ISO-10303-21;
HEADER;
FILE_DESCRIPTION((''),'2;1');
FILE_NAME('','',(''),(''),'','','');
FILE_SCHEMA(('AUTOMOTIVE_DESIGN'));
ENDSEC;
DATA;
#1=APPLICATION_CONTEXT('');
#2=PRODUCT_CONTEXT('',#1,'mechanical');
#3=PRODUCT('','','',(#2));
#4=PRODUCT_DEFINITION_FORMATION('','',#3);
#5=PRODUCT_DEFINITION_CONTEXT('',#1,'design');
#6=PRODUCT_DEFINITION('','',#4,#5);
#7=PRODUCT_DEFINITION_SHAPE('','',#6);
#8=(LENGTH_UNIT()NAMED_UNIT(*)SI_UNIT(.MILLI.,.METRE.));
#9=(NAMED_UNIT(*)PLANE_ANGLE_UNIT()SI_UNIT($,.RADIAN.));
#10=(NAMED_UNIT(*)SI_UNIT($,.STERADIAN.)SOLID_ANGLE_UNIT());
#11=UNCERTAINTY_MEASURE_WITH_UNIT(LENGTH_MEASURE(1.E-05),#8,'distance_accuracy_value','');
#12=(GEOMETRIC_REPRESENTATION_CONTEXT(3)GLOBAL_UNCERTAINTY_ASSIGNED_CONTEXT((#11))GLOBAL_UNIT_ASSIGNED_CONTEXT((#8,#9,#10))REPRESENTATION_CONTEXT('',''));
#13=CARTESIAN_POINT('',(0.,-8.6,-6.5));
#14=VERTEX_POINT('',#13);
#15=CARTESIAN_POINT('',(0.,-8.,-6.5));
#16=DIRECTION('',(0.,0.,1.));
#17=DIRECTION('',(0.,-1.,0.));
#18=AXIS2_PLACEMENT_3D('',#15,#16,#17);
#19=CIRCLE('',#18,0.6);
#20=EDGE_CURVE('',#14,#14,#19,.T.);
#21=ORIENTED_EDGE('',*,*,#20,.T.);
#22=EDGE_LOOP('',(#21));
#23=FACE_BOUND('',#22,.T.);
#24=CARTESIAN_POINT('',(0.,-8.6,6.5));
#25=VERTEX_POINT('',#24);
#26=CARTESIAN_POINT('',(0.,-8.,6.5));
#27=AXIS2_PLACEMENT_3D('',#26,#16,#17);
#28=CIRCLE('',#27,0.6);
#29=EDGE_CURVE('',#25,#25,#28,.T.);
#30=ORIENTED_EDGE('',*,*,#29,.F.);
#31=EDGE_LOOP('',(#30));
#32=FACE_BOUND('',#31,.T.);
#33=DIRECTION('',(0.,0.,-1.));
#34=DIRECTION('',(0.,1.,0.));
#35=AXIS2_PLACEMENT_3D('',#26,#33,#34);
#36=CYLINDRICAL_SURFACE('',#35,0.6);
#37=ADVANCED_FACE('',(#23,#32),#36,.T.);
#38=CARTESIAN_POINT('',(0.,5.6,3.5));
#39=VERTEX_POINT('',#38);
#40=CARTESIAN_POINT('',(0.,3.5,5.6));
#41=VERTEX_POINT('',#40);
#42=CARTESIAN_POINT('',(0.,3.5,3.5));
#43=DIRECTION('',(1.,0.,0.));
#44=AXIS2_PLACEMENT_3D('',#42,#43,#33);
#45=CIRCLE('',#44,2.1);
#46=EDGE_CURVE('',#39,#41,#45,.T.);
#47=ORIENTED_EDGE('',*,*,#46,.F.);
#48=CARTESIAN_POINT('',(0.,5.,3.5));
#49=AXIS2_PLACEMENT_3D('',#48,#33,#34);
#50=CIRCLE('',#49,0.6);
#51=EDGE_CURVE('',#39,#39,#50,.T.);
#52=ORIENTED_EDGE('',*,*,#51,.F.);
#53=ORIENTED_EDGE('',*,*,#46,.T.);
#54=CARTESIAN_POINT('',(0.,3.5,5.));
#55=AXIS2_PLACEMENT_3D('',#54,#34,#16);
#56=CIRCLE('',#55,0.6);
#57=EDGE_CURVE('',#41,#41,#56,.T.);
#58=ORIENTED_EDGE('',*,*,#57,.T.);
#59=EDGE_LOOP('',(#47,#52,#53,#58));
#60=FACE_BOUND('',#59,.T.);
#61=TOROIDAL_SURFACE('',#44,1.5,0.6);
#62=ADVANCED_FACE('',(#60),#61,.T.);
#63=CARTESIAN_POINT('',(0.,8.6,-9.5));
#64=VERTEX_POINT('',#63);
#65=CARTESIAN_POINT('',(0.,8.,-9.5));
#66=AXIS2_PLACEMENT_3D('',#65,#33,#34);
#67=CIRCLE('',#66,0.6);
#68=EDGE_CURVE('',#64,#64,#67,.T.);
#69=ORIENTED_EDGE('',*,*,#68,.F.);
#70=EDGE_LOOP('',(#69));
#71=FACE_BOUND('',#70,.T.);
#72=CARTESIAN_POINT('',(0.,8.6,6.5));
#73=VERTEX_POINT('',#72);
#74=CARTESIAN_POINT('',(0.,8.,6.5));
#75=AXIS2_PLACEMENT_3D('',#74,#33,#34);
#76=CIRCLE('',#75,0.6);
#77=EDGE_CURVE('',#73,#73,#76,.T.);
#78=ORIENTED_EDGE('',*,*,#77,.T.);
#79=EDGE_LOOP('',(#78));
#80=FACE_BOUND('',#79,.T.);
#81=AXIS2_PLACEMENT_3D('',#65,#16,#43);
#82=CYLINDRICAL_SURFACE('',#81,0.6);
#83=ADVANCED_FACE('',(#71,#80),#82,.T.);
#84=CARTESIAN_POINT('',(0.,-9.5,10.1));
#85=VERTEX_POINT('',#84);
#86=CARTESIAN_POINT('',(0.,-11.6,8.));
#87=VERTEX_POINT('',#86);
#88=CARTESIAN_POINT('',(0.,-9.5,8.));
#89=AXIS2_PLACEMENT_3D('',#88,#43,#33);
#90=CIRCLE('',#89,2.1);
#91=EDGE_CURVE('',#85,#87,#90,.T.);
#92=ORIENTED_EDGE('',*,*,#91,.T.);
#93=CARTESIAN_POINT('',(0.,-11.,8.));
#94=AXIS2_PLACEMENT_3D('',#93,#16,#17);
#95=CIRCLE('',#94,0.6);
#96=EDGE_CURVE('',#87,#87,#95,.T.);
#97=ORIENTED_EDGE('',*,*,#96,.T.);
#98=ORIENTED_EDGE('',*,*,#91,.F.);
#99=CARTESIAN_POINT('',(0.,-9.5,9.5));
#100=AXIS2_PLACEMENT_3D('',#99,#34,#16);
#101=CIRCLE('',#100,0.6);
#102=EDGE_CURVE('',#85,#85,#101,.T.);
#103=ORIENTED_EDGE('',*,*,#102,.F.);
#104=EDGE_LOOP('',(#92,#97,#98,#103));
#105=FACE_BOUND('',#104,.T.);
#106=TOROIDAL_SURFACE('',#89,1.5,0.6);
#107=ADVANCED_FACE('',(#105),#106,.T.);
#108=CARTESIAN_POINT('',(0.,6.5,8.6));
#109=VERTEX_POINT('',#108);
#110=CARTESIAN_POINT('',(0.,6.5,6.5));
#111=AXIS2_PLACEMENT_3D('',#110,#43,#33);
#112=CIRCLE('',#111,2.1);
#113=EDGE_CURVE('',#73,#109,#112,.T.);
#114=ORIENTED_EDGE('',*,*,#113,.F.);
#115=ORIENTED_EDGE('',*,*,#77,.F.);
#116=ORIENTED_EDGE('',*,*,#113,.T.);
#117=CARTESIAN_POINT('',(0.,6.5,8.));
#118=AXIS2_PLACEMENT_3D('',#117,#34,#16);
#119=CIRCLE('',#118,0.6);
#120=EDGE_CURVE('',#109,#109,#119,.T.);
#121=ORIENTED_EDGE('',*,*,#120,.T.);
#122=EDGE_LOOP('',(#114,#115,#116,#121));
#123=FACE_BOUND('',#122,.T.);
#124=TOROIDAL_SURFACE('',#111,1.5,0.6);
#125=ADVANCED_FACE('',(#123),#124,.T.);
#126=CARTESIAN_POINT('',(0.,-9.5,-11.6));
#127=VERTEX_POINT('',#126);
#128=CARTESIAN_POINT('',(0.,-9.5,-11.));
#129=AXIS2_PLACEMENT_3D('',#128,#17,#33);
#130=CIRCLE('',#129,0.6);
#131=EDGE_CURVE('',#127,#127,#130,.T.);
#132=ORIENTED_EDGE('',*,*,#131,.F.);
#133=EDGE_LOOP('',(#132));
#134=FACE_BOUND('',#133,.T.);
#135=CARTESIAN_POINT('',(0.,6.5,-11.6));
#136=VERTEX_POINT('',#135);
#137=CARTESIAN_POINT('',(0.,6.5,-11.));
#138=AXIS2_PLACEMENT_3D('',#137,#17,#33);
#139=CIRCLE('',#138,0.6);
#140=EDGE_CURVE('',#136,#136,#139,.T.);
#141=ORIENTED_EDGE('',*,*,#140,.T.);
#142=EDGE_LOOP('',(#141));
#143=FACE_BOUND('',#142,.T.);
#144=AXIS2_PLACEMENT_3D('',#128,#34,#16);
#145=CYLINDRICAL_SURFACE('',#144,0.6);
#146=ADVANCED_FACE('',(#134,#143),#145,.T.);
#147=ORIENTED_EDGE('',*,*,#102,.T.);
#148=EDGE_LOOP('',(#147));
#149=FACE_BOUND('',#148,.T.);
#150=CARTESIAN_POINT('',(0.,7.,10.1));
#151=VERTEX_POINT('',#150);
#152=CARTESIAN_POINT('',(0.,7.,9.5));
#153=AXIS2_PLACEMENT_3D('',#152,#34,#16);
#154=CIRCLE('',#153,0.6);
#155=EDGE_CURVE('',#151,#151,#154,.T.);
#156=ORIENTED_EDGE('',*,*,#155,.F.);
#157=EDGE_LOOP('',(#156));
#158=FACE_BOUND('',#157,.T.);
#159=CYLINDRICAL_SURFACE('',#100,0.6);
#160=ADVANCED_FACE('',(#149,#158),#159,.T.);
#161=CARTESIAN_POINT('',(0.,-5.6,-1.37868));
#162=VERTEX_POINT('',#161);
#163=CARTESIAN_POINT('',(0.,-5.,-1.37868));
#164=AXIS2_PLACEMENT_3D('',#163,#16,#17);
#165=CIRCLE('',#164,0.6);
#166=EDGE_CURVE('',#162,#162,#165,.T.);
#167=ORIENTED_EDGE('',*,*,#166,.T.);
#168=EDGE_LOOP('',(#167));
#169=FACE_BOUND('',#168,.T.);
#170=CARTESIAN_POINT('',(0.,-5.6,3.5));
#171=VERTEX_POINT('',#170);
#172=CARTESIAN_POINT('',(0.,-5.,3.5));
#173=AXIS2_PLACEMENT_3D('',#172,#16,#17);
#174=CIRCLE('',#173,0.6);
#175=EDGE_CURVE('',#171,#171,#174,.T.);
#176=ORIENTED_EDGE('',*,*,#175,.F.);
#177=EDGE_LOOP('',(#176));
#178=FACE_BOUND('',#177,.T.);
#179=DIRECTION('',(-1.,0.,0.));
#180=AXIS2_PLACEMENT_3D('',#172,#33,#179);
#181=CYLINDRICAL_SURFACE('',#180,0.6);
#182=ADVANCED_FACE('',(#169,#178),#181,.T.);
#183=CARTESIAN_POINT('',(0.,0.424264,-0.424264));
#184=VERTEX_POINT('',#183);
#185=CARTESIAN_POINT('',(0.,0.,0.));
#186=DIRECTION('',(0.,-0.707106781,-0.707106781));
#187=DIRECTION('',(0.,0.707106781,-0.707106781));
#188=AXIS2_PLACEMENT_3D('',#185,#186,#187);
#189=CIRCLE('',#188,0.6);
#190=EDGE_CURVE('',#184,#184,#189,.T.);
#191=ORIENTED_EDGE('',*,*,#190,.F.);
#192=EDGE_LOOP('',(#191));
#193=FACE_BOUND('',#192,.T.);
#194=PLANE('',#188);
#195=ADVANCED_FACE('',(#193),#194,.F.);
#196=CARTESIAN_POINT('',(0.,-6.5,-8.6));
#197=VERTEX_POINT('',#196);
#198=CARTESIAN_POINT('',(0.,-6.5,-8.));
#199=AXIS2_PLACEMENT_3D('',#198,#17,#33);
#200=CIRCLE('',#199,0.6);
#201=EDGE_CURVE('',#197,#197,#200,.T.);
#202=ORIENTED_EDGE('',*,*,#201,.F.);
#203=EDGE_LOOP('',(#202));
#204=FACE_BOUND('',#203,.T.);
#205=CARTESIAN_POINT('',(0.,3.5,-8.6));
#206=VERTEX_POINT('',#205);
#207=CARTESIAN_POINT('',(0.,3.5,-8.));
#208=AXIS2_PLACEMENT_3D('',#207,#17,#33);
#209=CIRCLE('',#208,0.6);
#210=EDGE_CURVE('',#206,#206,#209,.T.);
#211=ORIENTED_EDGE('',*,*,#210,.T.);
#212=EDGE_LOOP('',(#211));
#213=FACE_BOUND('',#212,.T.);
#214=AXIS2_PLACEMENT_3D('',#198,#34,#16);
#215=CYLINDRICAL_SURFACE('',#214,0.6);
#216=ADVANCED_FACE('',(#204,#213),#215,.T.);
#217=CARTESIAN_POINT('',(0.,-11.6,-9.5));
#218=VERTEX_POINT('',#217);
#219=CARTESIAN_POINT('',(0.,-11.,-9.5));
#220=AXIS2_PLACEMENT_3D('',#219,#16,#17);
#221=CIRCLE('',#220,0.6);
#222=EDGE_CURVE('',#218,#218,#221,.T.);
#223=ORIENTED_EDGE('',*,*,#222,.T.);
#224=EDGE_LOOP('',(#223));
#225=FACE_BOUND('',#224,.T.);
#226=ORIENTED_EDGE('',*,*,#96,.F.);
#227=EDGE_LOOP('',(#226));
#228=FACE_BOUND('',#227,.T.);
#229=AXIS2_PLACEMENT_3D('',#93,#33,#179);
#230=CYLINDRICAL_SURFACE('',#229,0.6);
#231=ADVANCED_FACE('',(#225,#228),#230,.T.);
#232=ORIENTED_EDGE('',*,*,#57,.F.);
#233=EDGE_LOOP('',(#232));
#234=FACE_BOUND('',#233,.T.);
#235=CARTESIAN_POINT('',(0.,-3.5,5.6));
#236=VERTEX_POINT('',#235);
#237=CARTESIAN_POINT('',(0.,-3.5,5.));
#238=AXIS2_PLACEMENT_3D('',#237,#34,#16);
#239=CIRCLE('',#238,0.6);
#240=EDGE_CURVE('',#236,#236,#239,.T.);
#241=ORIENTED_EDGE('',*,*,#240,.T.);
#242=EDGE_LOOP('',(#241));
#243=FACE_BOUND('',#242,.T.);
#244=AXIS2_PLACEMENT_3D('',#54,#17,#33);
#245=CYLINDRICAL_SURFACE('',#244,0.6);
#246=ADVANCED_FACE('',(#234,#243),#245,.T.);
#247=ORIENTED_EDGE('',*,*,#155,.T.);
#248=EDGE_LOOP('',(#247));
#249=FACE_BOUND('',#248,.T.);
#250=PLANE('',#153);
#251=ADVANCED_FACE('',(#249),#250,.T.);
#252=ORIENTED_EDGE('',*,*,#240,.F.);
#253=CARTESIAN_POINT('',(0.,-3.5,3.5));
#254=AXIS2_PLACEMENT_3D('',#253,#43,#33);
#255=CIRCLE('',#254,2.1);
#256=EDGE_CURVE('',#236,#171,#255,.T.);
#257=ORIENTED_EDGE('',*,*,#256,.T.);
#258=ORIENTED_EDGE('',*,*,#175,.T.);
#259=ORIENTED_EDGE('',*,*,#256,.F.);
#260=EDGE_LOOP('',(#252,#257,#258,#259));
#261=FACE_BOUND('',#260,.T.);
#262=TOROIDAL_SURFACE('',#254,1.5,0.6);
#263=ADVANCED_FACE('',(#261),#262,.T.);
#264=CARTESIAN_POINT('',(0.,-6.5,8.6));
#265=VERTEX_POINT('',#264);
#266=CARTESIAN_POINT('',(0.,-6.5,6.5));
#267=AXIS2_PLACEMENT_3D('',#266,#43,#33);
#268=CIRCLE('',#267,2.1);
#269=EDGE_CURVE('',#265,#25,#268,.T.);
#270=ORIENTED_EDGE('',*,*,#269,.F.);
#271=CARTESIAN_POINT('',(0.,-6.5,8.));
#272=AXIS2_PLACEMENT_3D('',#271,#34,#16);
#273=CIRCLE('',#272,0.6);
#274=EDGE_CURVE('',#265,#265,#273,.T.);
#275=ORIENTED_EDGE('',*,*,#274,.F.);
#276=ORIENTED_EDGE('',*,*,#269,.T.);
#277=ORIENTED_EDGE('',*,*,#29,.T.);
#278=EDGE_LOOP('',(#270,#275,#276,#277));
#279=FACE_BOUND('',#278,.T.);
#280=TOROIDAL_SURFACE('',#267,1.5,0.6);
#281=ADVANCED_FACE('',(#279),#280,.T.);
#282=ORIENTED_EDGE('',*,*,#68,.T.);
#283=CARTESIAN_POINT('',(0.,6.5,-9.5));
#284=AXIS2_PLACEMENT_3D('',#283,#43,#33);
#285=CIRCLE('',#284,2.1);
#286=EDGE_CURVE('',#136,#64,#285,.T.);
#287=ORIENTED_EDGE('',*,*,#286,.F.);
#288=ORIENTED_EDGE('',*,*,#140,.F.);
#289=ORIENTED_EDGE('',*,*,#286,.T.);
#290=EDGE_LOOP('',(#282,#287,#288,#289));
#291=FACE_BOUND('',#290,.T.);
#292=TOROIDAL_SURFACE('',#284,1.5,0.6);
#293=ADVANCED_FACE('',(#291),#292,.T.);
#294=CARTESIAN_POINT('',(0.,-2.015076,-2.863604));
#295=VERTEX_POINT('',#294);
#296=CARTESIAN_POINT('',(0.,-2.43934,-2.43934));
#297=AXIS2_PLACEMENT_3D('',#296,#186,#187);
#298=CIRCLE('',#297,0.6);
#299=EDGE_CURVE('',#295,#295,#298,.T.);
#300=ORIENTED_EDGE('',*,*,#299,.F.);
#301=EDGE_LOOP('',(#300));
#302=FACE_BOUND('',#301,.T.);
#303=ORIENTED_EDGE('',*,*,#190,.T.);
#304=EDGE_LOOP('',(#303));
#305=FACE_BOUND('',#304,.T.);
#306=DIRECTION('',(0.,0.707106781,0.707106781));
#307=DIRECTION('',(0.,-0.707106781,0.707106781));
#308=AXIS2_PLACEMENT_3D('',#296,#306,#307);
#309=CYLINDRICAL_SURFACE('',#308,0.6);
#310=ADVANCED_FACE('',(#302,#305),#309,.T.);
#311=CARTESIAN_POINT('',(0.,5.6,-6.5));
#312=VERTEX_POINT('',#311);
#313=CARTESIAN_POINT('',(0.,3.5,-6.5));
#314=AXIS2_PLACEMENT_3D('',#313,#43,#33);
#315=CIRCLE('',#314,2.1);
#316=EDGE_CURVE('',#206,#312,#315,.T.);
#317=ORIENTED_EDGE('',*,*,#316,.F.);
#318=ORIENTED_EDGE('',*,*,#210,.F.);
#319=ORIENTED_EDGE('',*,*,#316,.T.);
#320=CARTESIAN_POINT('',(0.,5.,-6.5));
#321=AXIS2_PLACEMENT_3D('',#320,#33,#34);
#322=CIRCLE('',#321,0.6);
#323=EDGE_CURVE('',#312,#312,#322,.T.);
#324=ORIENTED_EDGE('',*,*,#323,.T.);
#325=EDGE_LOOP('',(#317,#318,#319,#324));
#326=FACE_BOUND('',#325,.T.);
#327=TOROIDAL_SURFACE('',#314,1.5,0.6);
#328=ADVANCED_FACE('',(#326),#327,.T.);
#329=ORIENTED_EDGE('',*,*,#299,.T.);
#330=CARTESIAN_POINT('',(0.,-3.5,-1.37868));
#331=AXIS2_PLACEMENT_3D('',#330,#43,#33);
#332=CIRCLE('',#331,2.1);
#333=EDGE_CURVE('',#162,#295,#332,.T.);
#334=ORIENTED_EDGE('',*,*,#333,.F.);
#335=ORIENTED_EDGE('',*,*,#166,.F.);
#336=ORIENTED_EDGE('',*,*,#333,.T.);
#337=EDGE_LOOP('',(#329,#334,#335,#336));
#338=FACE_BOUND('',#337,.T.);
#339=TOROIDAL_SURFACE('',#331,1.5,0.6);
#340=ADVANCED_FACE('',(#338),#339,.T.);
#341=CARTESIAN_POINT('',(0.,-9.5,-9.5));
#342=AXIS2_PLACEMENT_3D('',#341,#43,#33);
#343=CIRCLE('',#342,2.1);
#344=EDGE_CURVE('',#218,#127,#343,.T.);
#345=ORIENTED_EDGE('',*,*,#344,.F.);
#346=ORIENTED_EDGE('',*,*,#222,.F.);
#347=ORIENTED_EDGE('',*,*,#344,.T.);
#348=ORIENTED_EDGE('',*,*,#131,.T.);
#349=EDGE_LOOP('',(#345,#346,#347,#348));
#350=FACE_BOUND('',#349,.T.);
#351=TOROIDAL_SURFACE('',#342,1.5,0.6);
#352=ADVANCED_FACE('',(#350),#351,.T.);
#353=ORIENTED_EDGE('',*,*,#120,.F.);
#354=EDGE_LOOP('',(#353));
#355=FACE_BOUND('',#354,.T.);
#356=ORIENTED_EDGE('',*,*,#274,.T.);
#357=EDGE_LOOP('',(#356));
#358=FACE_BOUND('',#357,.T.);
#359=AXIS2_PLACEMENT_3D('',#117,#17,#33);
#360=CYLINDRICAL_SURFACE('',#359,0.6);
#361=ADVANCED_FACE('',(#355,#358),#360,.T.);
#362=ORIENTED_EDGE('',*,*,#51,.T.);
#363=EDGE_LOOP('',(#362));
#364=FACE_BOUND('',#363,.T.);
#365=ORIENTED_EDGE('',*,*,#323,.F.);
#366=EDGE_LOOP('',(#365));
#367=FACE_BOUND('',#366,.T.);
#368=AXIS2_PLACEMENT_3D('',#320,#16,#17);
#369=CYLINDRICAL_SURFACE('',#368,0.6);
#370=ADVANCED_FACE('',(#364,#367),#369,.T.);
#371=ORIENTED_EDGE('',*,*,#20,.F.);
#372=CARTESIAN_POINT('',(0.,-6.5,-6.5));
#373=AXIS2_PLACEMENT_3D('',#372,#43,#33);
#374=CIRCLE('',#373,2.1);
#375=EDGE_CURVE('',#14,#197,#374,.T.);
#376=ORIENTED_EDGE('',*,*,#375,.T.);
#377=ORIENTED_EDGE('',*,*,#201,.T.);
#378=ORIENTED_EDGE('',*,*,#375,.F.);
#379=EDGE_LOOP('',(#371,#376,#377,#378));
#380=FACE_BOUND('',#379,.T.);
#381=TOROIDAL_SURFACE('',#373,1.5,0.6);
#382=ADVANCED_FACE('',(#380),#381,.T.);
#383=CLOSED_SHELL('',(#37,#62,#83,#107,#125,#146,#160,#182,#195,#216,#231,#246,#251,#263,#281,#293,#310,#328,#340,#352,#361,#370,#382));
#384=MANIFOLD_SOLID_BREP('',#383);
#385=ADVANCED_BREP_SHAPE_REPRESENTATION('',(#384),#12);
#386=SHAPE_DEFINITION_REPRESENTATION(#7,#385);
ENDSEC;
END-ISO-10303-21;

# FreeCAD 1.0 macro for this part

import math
import FreeCAD as App
import Part
import Sketcher

V = App.Vector
Q = App.Units.Quantity

doc = App.newDocument("Part")
body = doc.addObject("PartDesign::Body", "Body")

# Sketch on XZ plane
sketch1 = body.newObject("Sketcher::SketchObject", "Sketch")
sketch1.AttachmentSupport = (doc.getObject("XZ_Plane"), [""])
sketch1.MapMode = "FlatFace"
sketch1.AttachmentOffset = App.Placement(V(0, 0, -7), App.Rotation())
sketch1.addGeometry(Part.Circle(V(0, 9.5, 0), V(0, 0, 1), 0.6), False)
sketch1.addConstraint([
    Sketcher.Constraint("PointOnObject", 0, 3, -2),
    Sketcher.Constraint("Diameter", 0, Q("1.2 mm")),
    Sketcher.Constraint("DistanceY", -1, 1, 0, 3, Q("9.5 mm")),
])

# Sketch on YZ plane
sketch2 = body.newObject("Sketcher::SketchObject", "Sketch001")
sketch2.AttachmentSupport = (doc.getObject("YZ_Plane"), [""])
sketch2.MapMode = "FlatFace"
sketch2.addGeometry([
    Part.LineSegment(V(0, 0, 0), V(-2.4, -2.4, 0)),  # 0
    Part.ArcOfCircle(Part.Circle(V(-3.5, -1.4, 0), V(0, 0, 1), 1.5), math.radians(180), math.radians(315)),  # 1
    Part.LineSegment(V(-5, -1.4, 0), V(-5, 3.5, 0)),  # 2
    Part.ArcOfCircle(Part.Circle(V(-3.5, 3.5, 0), V(0, 0, 1), 1.5), math.radians(90), math.radians(180)),  # 3
    Part.LineSegment(V(-3.5, 5, 0), V(3.5, 5, 0)),  # 4
    Part.ArcOfCircle(Part.Circle(V(3.5, 3.5, 0), V(0, 0, 1), 1.5), math.radians(0), math.radians(90)),  # 5
    Part.LineSegment(V(5, 3.5, 0), V(5, -6.5, 0)),  # 6
    Part.ArcOfCircle(Part.Circle(V(3.5, -6.5, 0), V(0, 0, 1), 1.5), math.radians(-90), math.radians(0)),  # 7
    Part.LineSegment(V(3.5, -8, 0), V(-6.5, -8, 0)),  # 8
    Part.ArcOfCircle(Part.Circle(V(-6.5, -6.5, 0), V(0, 0, 1), 1.5), math.radians(180), math.radians(270)),  # 9
    Part.LineSegment(V(-8, -6.5, 0), V(-8, 6.5, 0)),  # 10
    Part.ArcOfCircle(Part.Circle(V(-6.5, 6.5, 0), V(0, 0, 1), 1.5), math.radians(90), math.radians(180)),  # 11
    Part.LineSegment(V(-6.5, 8, 0), V(6.5, 8, 0)),  # 12
    Part.ArcOfCircle(Part.Circle(V(6.5, 6.5, 0), V(0, 0, 1), 1.5), math.radians(0), math.radians(90)),  # 13
    Part.LineSegment(V(8, 6.5, 0), V(8, -9.5, 0)),  # 14
    Part.ArcOfCircle(Part.Circle(V(6.5, -9.5, 0), V(0, 0, 1), 1.5), math.radians(-90), math.radians(0)),  # 15
    Part.LineSegment(V(6.5, -11, 0), V(-9.5, -11, 0)),  # 16
    Part.ArcOfCircle(Part.Circle(V(-9.5, -9.5, 0), V(0, 0, 1), 1.5), math.radians(180), math.radians(270)),  # 17
    Part.LineSegment(V(-11, -9.5, 0), V(-11, 8, 0)),  # 18
    Part.ArcOfCircle(Part.Circle(V(-9.5, 8, 0), V(0, 0, 1), 1.5), math.radians(90), math.radians(180)),  # 19
    Part.LineSegment(V(-9.5, 9.5, 0), V(7, 9.5, 0)),  # 20
], False)
sketch2.addConstraint([
    Sketcher.Constraint("Tangent", 0, 2, 1, 2),
    Sketcher.Constraint("Tangent", 1, 1, 2, 1),
    Sketcher.Constraint("Tangent", 2, 2, 3, 2),
    Sketcher.Constraint("Tangent", 3, 1, 4, 1),
    Sketcher.Constraint("Tangent", 4, 2, 5, 2),
    Sketcher.Constraint("Tangent", 5, 1, 6, 1),
    Sketcher.Constraint("Tangent", 6, 2, 7, 2),
    Sketcher.Constraint("Tangent", 7, 1, 8, 1),
    Sketcher.Constraint("Tangent", 8, 2, 9, 2),
    Sketcher.Constraint("Tangent", 9, 1, 10, 1),
    Sketcher.Constraint("Tangent", 10, 2, 11, 2),
    Sketcher.Constraint("Tangent", 11, 1, 12, 1),
    Sketcher.Constraint("Tangent", 12, 2, 13, 2),
    Sketcher.Constraint("Tangent", 13, 1, 14, 1),
    Sketcher.Constraint("Tangent", 14, 2, 15, 2),
    Sketcher.Constraint("Tangent", 15, 1, 16, 1),
    Sketcher.Constraint("Tangent", 16, 2, 17, 2),
    Sketcher.Constraint("Tangent", 17, 1, 18, 1),
    Sketcher.Constraint("Tangent", 18, 2, 19, 2),
    Sketcher.Constraint("Tangent", 19, 1, 20, 1),
    Sketcher.Constraint("Vertical", 2),
    Sketcher.Constraint("Horizontal", 4),
    Sketcher.Constraint("Vertical", 6),
    Sketcher.Constraint("Horizontal", 8),
    Sketcher.Constraint("Vertical", 10),
    Sketcher.Constraint("Horizontal", 12),
    Sketcher.Constraint("Vertical", 14),
    Sketcher.Constraint("Horizontal", 16),
    Sketcher.Constraint("Vertical", 18),
    Sketcher.Constraint("Horizontal", 20),
    Sketcher.Constraint("Coincident", 0, 1, -1, 1),
    Sketcher.Constraint("Equal", 1, 3),
    Sketcher.Constraint("Equal", 3, 5),
    Sketcher.Constraint("Equal", 5, 7),
    Sketcher.Constraint("Equal", 7, 9),
    Sketcher.Constraint("Equal", 9, 11),
    Sketcher.Constraint("Equal", 11, 13),
    Sketcher.Constraint("Equal", 13, 15),
    Sketcher.Constraint("Equal", 15, 17),
    Sketcher.Constraint("Equal", 17, 19),
    Sketcher.Constraint("Symmetric", 9, 3, 13, 3, -1, 1),
    Sketcher.Constraint("Horizontal", 19, 3, 11, 1),
    Sketcher.Constraint("Equal", 8, 6),
    Sketcher.Constraint("Equal", 12, 10),
    Sketcher.Constraint("Equal", 16, 14),
    Sketcher.Constraint("Radius", 1, Q("1.5 mm")),
    Sketcher.Constraint("DistanceX", 4, 1, 4, 2, Q("7 mm")),
    Sketcher.Constraint("DistanceX", 8, 2, 8, 1, Q("10 mm")),
    Sketcher.Constraint("DistanceX", 12, 1, 12, 2, Q("13 mm")),
    Sketcher.Constraint("DistanceX", 16, 2, 16, 1, Q("16 mm")),
    Sketcher.Constraint("Angle", 0, Q("-135 deg")),
    Sketcher.Constraint("DistanceX", 20, 1, 20, 2, Q("16.5 mm")),
])
doc.recompute()

additivepipe = body.newObject("PartDesign::AdditivePipe", "AdditivePipe")
additivepipe.Profile = sketch1
additivepipe.Spine = (sketch2, ["Edge1", "Edge2", "Edge3", "Edge4", "Edge5", "Edge6", "Edge7", "Edge8", "Edge9", "Edge10", "Edge11", "Edge12", "Edge13", "Edge14", "Edge15", "Edge16", "Edge17", "Edge18", "Edge19", "Edge20", "Edge21"])

doc.recompute()
